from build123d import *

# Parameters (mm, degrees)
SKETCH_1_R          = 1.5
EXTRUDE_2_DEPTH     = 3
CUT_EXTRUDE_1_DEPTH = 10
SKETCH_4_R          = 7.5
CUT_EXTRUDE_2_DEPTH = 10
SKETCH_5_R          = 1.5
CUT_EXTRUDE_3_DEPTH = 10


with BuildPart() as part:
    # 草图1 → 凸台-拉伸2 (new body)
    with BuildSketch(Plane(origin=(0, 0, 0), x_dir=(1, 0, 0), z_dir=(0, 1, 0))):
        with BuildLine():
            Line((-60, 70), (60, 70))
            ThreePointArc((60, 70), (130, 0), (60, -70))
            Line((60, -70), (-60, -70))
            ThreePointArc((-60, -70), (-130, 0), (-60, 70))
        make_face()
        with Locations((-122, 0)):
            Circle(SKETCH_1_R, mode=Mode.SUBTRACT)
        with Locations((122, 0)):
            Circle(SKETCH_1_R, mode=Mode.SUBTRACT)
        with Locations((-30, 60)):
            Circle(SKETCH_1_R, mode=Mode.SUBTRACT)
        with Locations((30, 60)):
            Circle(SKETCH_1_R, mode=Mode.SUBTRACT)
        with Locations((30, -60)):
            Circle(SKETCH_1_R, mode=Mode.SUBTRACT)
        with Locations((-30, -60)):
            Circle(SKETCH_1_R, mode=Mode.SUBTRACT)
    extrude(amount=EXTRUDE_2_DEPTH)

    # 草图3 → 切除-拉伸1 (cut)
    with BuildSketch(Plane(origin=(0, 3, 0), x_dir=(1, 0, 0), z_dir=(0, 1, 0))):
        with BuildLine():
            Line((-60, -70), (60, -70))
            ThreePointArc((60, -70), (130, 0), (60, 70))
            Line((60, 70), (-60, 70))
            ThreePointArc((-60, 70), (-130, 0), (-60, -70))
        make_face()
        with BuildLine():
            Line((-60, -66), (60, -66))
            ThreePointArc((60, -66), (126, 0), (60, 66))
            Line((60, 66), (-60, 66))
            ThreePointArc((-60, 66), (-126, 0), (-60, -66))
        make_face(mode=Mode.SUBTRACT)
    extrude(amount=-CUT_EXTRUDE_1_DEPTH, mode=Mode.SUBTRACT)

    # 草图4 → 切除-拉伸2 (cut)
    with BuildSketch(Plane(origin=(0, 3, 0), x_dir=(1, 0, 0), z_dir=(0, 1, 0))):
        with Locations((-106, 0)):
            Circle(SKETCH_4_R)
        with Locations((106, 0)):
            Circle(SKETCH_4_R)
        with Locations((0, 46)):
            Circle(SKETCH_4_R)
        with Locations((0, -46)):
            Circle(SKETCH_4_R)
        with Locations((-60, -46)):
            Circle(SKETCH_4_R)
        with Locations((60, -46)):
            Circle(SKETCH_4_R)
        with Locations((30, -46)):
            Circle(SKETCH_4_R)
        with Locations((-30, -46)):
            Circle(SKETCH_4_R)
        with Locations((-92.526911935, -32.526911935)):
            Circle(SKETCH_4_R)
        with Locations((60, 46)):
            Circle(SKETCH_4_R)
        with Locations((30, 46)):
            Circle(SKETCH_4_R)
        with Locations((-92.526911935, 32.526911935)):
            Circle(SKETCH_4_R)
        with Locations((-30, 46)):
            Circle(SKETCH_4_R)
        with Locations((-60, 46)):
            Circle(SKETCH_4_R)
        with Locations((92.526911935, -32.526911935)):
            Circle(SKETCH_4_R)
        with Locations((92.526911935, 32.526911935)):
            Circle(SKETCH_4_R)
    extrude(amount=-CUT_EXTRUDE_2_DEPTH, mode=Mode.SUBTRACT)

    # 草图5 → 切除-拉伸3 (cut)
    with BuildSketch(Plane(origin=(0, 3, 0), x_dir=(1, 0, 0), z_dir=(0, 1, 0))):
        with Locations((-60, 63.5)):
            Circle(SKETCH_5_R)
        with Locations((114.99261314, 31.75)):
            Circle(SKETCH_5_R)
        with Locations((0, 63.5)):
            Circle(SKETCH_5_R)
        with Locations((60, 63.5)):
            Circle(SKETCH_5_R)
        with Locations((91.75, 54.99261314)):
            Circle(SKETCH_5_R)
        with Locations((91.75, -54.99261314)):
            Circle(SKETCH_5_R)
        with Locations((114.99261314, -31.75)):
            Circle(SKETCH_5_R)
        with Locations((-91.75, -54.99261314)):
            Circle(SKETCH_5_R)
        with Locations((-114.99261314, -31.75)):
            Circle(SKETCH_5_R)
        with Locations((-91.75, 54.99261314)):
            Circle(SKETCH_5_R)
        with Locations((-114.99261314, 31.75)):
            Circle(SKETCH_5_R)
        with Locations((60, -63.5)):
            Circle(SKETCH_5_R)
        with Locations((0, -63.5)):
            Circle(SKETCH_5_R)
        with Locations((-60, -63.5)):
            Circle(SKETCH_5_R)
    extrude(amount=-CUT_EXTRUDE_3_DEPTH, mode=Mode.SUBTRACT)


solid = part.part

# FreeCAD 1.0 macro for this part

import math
import FreeCAD as App
import Part
import Sketcher
Q = App.Units.Quantity

doc = App.newDocument("Part")
body = doc.addObject("PartDesign::Body", "Body")

# Sketch on XZ plane
sketch1 = doc.addObject("Sketcher::SketchObject", "Sketch")
body.addObject(sketch1)
sketch1.AttachmentSupport = (doc.XZ_Plane, [""])
sketch1.MapMode = "FlatFace"
sketch1.addGeometry([
    Part.LineSegment(App.Vector(60, -70, 0), App.Vector(-60, -70, 0)),  # 0
    Part.ArcOfCircle(Part.Circle(App.Vector(-60, 0, 0), App.Vector(0, 0, 1), 70), math.radians(90), math.radians(270)),  # 1
    Part.LineSegment(App.Vector(-60, 70, 0), App.Vector(60, 70, 0)),  # 2
    Part.ArcOfCircle(Part.Circle(App.Vector(60, 0, 0), App.Vector(0, 0, 1), 70), math.radians(-90), math.radians(90)),  # 3
    Part.Circle(App.Vector(30, 60, 0), App.Vector(0, 0, 1), 1.5),  # 4
    Part.Circle(App.Vector(-30, 60, 0), App.Vector(0, 0, 1), 1.5),  # 5
    Part.Circle(App.Vector(122, 0, 0), App.Vector(0, 0, 1), 1.5),  # 6
    Part.Circle(App.Vector(30, -60, 0), App.Vector(0, 0, 1), 1.5),  # 7
    Part.Circle(App.Vector(-122, 0, 0), App.Vector(0, 0, 1), 1.5),  # 8
    Part.Circle(App.Vector(-30, -60, 0), App.Vector(0, 0, 1), 1.5),  # 9
], False)
sketch1.addConstraint([
    Sketcher.Constraint("Tangent", 0, 2, 1, 2),
    Sketcher.Constraint("Tangent", 1, 1, 2, 1),
    Sketcher.Constraint("Tangent", 2, 2, 3, 2),
    Sketcher.Constraint("Tangent", 3, 1, 0, 1),
    Sketcher.Constraint("Horizontal", 0),
    Sketcher.Constraint("Horizontal", 2),
    Sketcher.Constraint("Equal", 4, 5),
    Sketcher.Constraint("Equal", 5, 6),
    Sketcher.Constraint("Equal", 6, 7),
    Sketcher.Constraint("Equal", 7, 8),
    Sketcher.Constraint("Equal", 8, 9),
    Sketcher.Constraint("Symmetric", 1, 3, 3, 3, -1, 1),
    Sketcher.Constraint("Symmetric", 5, 3, 7, 3, -1, 1),
    Sketcher.Constraint("Symmetric", 6, 3, 8, 3, -1, 1),
    Sketcher.Constraint("Symmetric", 4, 3, 9, 3, -1, 1),
    Sketcher.Constraint("Symmetric", 4, 3, 5, 3, -2),
    Sketcher.Constraint("PointOnObject", 6, 3, -1),
    Sketcher.Constraint("Diameter", 4, Q("3 mm")),
    Sketcher.Constraint("Radius", 1, Q("70 mm")),
    Sketcher.Constraint("DistanceX", 0, 2, 0, 1, Q("120 mm")),
    Sketcher.Constraint("DistanceX", -1, 1, 4, 3, Q("30 mm")),
    Sketcher.Constraint("DistanceY", -1, 1, 4, 3, Q("60 mm")),
    Sketcher.Constraint("DistanceX", -1, 1, 6, 3, Q("122 mm")),
])
pad1 = doc.addObject("PartDesign::Pad", "Pad")
body.addObject(pad1)
pad1.Profile = sketch1
pad1.Length = 3
pad1.Reversed = True

# Sketch on XZ plane
sketch2 = doc.addObject("Sketcher::SketchObject", "Sketch001")
body.addObject(sketch2)
sketch2.AttachmentSupport = (doc.XZ_Plane, [""])
sketch2.MapMode = "FlatFace"
sketch2.AttachmentOffset = App.Placement(App.Vector(0, 0, -3), App.Rotation())
sketch2.addGeometry([
    Part.LineSegment(App.Vector(-60, 70, 0), App.Vector(60, 70, 0)),  # 0
    Part.ArcOfCircle(Part.Circle(App.Vector(60, 0, 0), App.Vector(0, 0, 1), 70), math.radians(-90), math.radians(90)),  # 1
    Part.LineSegment(App.Vector(60, -70, 0), App.Vector(-60, -70, 0)),  # 2
    Part.ArcOfCircle(Part.Circle(App.Vector(-60, 0, 0), App.Vector(0, 0, 1), 70), math.radians(90), math.radians(270)),  # 3
    Part.LineSegment(App.Vector(60, 66, 0), App.Vector(-60, 66, 0)),  # 4
    Part.ArcOfCircle(Part.Circle(App.Vector(-60, 0, 0), App.Vector(0, 0, 1), 66), math.radians(90), math.radians(270)),  # 5
    Part.LineSegment(App.Vector(-60, -66, 0), App.Vector(60, -66, 0)),  # 6
    Part.ArcOfCircle(Part.Circle(App.Vector(60, 0, 0), App.Vector(0, 0, 1), 66), math.radians(-90), math.radians(90)),  # 7
], False)
sketch2.addConstraint([
    Sketcher.Constraint("Tangent", 0, 2, 1, 2),
    Sketcher.Constraint("Tangent", 1, 1, 2, 1),
    Sketcher.Constraint("Tangent", 2, 2, 3, 2),
    Sketcher.Constraint("Tangent", 3, 1, 0, 1),
    Sketcher.Constraint("Tangent", 4, 2, 5, 1),
    Sketcher.Constraint("Tangent", 5, 2, 6, 1),
    Sketcher.Constraint("Tangent", 6, 2, 7, 1),
    Sketcher.Constraint("Tangent", 7, 2, 4, 1),
    Sketcher.Constraint("Horizontal", 0),
    Sketcher.Constraint("Horizontal", 2),
    Sketcher.Constraint("Horizontal", 4),
    Sketcher.Constraint("Horizontal", 6),
    Sketcher.Constraint("Coincident", 5, 3, 3, 3),
    Sketcher.Constraint("Symmetric", 1, 3, 3, 3, -1, 1),
    Sketcher.Constraint("Vertical", 7, 3, 0, 2),
    Sketcher.Constraint("Radius", 1, Q("70 mm")),
    Sketcher.Constraint("Radius", 5, Q("66 mm")),
    Sketcher.Constraint("DistanceX", 0, 1, 0, 2, Q("120 mm")),
])
pocket1 = doc.addObject("PartDesign::Pocket", "Pocket")
body.addObject(pocket1)
pocket1.Profile = sketch2
pocket1.Length = 10
pocket1.Reversed = True

# Sketch on XZ plane
sketch3 = doc.addObject("Sketcher::SketchObject", "Sketch002")
body.addObject(sketch3)
sketch3.AttachmentSupport = (doc.XZ_Plane, [""])
sketch3.MapMode = "FlatFace"
sketch3.AttachmentOffset = App.Placement(App.Vector(0, 0, -3), App.Rotation())
sketch3.addGeometry([
    Part.Circle(App.Vector(-106, 0, 0), App.Vector(0, 0, 1), 8),  # 0
    Part.Circle(App.Vector(106, 0, 0), App.Vector(0, 0, 1), 8),  # 1
    Part.Circle(App.Vector(0, -46, 0), App.Vector(0, 0, 1), 8),  # 2
    Part.Circle(App.Vector(0, 46, 0), App.Vector(0, 0, 1), 8),  # 3
    Part.Circle(App.Vector(-60, 46, 0), App.Vector(0, 0, 1), 8),  # 4
    Part.Circle(App.Vector(60, 46, 0), App.Vector(0, 0, 1), 8),  # 5
    Part.Circle(App.Vector(30, 46, 0), App.Vector(0, 0, 1), 8),  # 6
    Part.Circle(App.Vector(-30, 46, 0), App.Vector(0, 0, 1), 8),  # 7
    Part.Circle(App.Vector(-93, 33, 0), App.Vector(0, 0, 1), 8),  # 8
    Part.Circle(App.Vector(60, -46, 0), App.Vector(0, 0, 1), 8),  # 9
    Part.Circle(App.Vector(30, -46, 0), App.Vector(0, 0, 1), 8),  # 10
    Part.Circle(App.Vector(-93, -33, 0), App.Vector(0, 0, 1), 8),  # 11
    Part.Circle(App.Vector(-30, -46, 0), App.Vector(0, 0, 1), 8),  # 12
    Part.Circle(App.Vector(-60, -46, 0), App.Vector(0, 0, 1), 8),  # 13
    Part.Circle(App.Vector(93, 33, 0), App.Vector(0, 0, 1), 8),  # 14
    Part.Circle(App.Vector(93, -33, 0), App.Vector(0, 0, 1), 8),  # 15
], False)
sketch3.addConstraint([
    Sketcher.Constraint("Equal", 0, 1),
    Sketcher.Constraint("Equal", 1, 2),
    Sketcher.Constraint("Equal", 2, 3),
    Sketcher.Constraint("Equal", 3, 4),
    Sketcher.Constraint("Equal", 4, 5),
    Sketcher.Constraint("Equal", 5, 6),
    Sketcher.Constraint("Equal", 6, 7),
    Sketcher.Constraint("Equal", 7, 8),
    Sketcher.Constraint("Equal", 8, 9),
    Sketcher.Constraint("Equal", 9, 10),
    Sketcher.Constraint("Equal", 10, 11),
    Sketcher.Constraint("Equal", 11, 12),
    Sketcher.Constraint("Equal", 12, 13),
    Sketcher.Constraint("Equal", 13, 14),
    Sketcher.Constraint("Equal", 14, 15),
    Sketcher.Constraint("Symmetric", 0, 3, 1, 3, -1, 1),
    Sketcher.Constraint("Symmetric", 2, 3, 3, 3, -1, 1),
    Sketcher.Constraint("Symmetric", 4, 3, 9, 3, -1, 1),
    Sketcher.Constraint("Symmetric", 7, 3, 10, 3, -1, 1),
    Sketcher.Constraint("Symmetric", 6, 3, 12, 3, -1, 1),
    Sketcher.Constraint("Symmetric", 5, 3, 13, 3, -1, 1),
    Sketcher.Constraint("Symmetric", 11, 3, 14, 3, -1, 1),
    Sketcher.Constraint("Symmetric", 8, 3, 15, 3, -1, 1),
    Sketcher.Constraint("Symmetric", 4, 3, 5, 3, -2),
    Sketcher.Constraint("Symmetric", 6, 3, 7, 3, -2),
    Sketcher.Constraint("Symmetric", 8, 3, 14, 3, -2),
    Sketcher.Constraint("PointOnObject", 0, 3, -1),
    Sketcher.Constraint("PointOnObject", 2, 3, -2),
    Sketcher.Constraint("Horizontal", 3, 3, 4, 3),
    Sketcher.Constraint("Horizontal", 5, 3, 6, 3),
    Sketcher.Constraint("Diameter", 0, Q("15 mm")),
    Sketcher.Constraint("DistanceX", 0, 3, -1, 1, Q("106 mm")),
    Sketcher.Constraint("DistanceY", 2, 3, -1, 1, Q("46 mm")),
    Sketcher.Constraint("DistanceX", 4, 3, -1, 1, Q("60 mm")),
    Sketcher.Constraint("DistanceX", -1, 1, 6, 3, Q("30 mm")),
    Sketcher.Constraint("DistanceX", 8, 3, -1, 1, Q("92.526912 mm")),
    Sketcher.Constraint("DistanceY", -1, 1, 8, 3, Q("32.526912 mm")),
])
pocket2 = doc.addObject("PartDesign::Pocket", "Pocket001")
body.addObject(pocket2)
pocket2.Profile = sketch3
pocket2.Length = 10
pocket2.Reversed = True

# Sketch on XZ plane
sketch4 = doc.addObject("Sketcher::SketchObject", "Sketch003")
body.addObject(sketch4)
sketch4.AttachmentSupport = (doc.XZ_Plane, [""])
sketch4.MapMode = "FlatFace"
sketch4.AttachmentOffset = App.Placement(App.Vector(0, 0, -3), App.Rotation())
sketch4.addGeometry([
    Part.Circle(App.Vector(-60, -63.5, 0), App.Vector(0, 0, 1), 1.5),  # 0
    Part.Circle(App.Vector(115, -31.8, 0), App.Vector(0, 0, 1), 1.5),  # 1
    Part.Circle(App.Vector(0, -63.5, 0), App.Vector(0, 0, 1), 1.5),  # 2
    Part.Circle(App.Vector(60, -63.5, 0), App.Vector(0, 0, 1), 1.5),  # 3
    Part.Circle(App.Vector(91.8, -55, 0), App.Vector(0, 0, 1), 1.5),  # 4
    Part.Circle(App.Vector(91.8, 55, 0), App.Vector(0, 0, 1), 1.5),  # 5
    Part.Circle(App.Vector(115, 31.8, 0), App.Vector(0, 0, 1), 1.5),  # 6
    Part.Circle(App.Vector(-91.8, 55, 0), App.Vector(0, 0, 1), 1.5),  # 7
    Part.Circle(App.Vector(-115, 31.8, 0), App.Vector(0, 0, 1), 1.5),  # 8
    Part.Circle(App.Vector(-91.8, -55, 0), App.Vector(0, 0, 1), 1.5),  # 9
    Part.Circle(App.Vector(-115, -31.8, 0), App.Vector(0, 0, 1), 1.5),  # 10
    Part.Circle(App.Vector(60, 63.5, 0), App.Vector(0, 0, 1), 1.5),  # 11
    Part.Circle(App.Vector(0, 63.5, 0), App.Vector(0, 0, 1), 1.5),  # 12
    Part.Circle(App.Vector(-60, 63.5, 0), App.Vector(0, 0, 1), 1.5),  # 13
], False)
sketch4.addConstraint([
    Sketcher.Constraint("Equal", 0, 1),
    Sketcher.Constraint("Equal", 1, 2),
    Sketcher.Constraint("Equal", 2, 3),
    Sketcher.Constraint("Equal", 3, 4),
    Sketcher.Constraint("Equal", 4, 5),
    Sketcher.Constraint("Equal", 5, 6),
    Sketcher.Constraint("Equal", 6, 7),
    Sketcher.Constraint("Equal", 7, 8),
    Sketcher.Constraint("Equal", 8, 9),
    Sketcher.Constraint("Equal", 9, 10),
    Sketcher.Constraint("Equal", 10, 11),
    Sketcher.Constraint("Equal", 11, 12),
    Sketcher.Constraint("Equal", 12, 13),
    Sketcher.Constraint("Symmetric", 4, 3, 7, 3, -1, 1),
    Sketcher.Constraint("Symmetric", 1, 3, 8, 3, -1, 1),
    Sketcher.Constraint("Symmetric", 5, 3, 9, 3, -1, 1),
    Sketcher.Constraint("Symmetric", 6, 3, 10, 3, -1, 1),
    Sketcher.Constraint("Symmetric", 0, 3, 11, 3, -1, 1),
    Sketcher.Constraint("Symmetric", 2, 3, 12, 3, -1, 1),
    Sketcher.Constraint("Symmetric", 3, 3, 13, 3, -1, 1),
    Sketcher.Constraint("Symmetric", 0, 3, 3, 3, -2),
    Sketcher.Constraint("Symmetric", 5, 3, 7, 3, -2),
    Sketcher.Constraint("Symmetric", 6, 3, 8, 3, -2),
    Sketcher.Constraint("PointOnObject", 2, 3, -2),
    Sketcher.Constraint("Horizontal", 0, 3, 2, 3),
    Sketcher.Constraint("Diameter", 0, Q("3 mm")),
    Sketcher.Constraint("DistanceX", 0, 3, -1, 1, Q("60 mm")),
    Sketcher.Constraint("DistanceY", 3, 3, 11, 3, Q("127 mm")),
    Sketcher.Constraint("DistanceY", 1, 3, 6, 3, Q("63.5 mm")),
    Sketcher.Constraint("DistanceX", 7, 3, 5, 3, Q("183.5 mm")),
    Sketcher.Constraint("DistanceX", -1, 1, 1, 3, Q("114.992613 mm")),
    Sketcher.Constraint("DistanceY", 4, 3, -1, 1, Q("54.992613 mm")),
])
pocket3 = doc.addObject("PartDesign::Pocket", "Pocket002")
body.addObject(pocket3)
pocket3.Profile = sketch4
pocket3.Length = 10
pocket3.Reversed = True

doc.recompute()
